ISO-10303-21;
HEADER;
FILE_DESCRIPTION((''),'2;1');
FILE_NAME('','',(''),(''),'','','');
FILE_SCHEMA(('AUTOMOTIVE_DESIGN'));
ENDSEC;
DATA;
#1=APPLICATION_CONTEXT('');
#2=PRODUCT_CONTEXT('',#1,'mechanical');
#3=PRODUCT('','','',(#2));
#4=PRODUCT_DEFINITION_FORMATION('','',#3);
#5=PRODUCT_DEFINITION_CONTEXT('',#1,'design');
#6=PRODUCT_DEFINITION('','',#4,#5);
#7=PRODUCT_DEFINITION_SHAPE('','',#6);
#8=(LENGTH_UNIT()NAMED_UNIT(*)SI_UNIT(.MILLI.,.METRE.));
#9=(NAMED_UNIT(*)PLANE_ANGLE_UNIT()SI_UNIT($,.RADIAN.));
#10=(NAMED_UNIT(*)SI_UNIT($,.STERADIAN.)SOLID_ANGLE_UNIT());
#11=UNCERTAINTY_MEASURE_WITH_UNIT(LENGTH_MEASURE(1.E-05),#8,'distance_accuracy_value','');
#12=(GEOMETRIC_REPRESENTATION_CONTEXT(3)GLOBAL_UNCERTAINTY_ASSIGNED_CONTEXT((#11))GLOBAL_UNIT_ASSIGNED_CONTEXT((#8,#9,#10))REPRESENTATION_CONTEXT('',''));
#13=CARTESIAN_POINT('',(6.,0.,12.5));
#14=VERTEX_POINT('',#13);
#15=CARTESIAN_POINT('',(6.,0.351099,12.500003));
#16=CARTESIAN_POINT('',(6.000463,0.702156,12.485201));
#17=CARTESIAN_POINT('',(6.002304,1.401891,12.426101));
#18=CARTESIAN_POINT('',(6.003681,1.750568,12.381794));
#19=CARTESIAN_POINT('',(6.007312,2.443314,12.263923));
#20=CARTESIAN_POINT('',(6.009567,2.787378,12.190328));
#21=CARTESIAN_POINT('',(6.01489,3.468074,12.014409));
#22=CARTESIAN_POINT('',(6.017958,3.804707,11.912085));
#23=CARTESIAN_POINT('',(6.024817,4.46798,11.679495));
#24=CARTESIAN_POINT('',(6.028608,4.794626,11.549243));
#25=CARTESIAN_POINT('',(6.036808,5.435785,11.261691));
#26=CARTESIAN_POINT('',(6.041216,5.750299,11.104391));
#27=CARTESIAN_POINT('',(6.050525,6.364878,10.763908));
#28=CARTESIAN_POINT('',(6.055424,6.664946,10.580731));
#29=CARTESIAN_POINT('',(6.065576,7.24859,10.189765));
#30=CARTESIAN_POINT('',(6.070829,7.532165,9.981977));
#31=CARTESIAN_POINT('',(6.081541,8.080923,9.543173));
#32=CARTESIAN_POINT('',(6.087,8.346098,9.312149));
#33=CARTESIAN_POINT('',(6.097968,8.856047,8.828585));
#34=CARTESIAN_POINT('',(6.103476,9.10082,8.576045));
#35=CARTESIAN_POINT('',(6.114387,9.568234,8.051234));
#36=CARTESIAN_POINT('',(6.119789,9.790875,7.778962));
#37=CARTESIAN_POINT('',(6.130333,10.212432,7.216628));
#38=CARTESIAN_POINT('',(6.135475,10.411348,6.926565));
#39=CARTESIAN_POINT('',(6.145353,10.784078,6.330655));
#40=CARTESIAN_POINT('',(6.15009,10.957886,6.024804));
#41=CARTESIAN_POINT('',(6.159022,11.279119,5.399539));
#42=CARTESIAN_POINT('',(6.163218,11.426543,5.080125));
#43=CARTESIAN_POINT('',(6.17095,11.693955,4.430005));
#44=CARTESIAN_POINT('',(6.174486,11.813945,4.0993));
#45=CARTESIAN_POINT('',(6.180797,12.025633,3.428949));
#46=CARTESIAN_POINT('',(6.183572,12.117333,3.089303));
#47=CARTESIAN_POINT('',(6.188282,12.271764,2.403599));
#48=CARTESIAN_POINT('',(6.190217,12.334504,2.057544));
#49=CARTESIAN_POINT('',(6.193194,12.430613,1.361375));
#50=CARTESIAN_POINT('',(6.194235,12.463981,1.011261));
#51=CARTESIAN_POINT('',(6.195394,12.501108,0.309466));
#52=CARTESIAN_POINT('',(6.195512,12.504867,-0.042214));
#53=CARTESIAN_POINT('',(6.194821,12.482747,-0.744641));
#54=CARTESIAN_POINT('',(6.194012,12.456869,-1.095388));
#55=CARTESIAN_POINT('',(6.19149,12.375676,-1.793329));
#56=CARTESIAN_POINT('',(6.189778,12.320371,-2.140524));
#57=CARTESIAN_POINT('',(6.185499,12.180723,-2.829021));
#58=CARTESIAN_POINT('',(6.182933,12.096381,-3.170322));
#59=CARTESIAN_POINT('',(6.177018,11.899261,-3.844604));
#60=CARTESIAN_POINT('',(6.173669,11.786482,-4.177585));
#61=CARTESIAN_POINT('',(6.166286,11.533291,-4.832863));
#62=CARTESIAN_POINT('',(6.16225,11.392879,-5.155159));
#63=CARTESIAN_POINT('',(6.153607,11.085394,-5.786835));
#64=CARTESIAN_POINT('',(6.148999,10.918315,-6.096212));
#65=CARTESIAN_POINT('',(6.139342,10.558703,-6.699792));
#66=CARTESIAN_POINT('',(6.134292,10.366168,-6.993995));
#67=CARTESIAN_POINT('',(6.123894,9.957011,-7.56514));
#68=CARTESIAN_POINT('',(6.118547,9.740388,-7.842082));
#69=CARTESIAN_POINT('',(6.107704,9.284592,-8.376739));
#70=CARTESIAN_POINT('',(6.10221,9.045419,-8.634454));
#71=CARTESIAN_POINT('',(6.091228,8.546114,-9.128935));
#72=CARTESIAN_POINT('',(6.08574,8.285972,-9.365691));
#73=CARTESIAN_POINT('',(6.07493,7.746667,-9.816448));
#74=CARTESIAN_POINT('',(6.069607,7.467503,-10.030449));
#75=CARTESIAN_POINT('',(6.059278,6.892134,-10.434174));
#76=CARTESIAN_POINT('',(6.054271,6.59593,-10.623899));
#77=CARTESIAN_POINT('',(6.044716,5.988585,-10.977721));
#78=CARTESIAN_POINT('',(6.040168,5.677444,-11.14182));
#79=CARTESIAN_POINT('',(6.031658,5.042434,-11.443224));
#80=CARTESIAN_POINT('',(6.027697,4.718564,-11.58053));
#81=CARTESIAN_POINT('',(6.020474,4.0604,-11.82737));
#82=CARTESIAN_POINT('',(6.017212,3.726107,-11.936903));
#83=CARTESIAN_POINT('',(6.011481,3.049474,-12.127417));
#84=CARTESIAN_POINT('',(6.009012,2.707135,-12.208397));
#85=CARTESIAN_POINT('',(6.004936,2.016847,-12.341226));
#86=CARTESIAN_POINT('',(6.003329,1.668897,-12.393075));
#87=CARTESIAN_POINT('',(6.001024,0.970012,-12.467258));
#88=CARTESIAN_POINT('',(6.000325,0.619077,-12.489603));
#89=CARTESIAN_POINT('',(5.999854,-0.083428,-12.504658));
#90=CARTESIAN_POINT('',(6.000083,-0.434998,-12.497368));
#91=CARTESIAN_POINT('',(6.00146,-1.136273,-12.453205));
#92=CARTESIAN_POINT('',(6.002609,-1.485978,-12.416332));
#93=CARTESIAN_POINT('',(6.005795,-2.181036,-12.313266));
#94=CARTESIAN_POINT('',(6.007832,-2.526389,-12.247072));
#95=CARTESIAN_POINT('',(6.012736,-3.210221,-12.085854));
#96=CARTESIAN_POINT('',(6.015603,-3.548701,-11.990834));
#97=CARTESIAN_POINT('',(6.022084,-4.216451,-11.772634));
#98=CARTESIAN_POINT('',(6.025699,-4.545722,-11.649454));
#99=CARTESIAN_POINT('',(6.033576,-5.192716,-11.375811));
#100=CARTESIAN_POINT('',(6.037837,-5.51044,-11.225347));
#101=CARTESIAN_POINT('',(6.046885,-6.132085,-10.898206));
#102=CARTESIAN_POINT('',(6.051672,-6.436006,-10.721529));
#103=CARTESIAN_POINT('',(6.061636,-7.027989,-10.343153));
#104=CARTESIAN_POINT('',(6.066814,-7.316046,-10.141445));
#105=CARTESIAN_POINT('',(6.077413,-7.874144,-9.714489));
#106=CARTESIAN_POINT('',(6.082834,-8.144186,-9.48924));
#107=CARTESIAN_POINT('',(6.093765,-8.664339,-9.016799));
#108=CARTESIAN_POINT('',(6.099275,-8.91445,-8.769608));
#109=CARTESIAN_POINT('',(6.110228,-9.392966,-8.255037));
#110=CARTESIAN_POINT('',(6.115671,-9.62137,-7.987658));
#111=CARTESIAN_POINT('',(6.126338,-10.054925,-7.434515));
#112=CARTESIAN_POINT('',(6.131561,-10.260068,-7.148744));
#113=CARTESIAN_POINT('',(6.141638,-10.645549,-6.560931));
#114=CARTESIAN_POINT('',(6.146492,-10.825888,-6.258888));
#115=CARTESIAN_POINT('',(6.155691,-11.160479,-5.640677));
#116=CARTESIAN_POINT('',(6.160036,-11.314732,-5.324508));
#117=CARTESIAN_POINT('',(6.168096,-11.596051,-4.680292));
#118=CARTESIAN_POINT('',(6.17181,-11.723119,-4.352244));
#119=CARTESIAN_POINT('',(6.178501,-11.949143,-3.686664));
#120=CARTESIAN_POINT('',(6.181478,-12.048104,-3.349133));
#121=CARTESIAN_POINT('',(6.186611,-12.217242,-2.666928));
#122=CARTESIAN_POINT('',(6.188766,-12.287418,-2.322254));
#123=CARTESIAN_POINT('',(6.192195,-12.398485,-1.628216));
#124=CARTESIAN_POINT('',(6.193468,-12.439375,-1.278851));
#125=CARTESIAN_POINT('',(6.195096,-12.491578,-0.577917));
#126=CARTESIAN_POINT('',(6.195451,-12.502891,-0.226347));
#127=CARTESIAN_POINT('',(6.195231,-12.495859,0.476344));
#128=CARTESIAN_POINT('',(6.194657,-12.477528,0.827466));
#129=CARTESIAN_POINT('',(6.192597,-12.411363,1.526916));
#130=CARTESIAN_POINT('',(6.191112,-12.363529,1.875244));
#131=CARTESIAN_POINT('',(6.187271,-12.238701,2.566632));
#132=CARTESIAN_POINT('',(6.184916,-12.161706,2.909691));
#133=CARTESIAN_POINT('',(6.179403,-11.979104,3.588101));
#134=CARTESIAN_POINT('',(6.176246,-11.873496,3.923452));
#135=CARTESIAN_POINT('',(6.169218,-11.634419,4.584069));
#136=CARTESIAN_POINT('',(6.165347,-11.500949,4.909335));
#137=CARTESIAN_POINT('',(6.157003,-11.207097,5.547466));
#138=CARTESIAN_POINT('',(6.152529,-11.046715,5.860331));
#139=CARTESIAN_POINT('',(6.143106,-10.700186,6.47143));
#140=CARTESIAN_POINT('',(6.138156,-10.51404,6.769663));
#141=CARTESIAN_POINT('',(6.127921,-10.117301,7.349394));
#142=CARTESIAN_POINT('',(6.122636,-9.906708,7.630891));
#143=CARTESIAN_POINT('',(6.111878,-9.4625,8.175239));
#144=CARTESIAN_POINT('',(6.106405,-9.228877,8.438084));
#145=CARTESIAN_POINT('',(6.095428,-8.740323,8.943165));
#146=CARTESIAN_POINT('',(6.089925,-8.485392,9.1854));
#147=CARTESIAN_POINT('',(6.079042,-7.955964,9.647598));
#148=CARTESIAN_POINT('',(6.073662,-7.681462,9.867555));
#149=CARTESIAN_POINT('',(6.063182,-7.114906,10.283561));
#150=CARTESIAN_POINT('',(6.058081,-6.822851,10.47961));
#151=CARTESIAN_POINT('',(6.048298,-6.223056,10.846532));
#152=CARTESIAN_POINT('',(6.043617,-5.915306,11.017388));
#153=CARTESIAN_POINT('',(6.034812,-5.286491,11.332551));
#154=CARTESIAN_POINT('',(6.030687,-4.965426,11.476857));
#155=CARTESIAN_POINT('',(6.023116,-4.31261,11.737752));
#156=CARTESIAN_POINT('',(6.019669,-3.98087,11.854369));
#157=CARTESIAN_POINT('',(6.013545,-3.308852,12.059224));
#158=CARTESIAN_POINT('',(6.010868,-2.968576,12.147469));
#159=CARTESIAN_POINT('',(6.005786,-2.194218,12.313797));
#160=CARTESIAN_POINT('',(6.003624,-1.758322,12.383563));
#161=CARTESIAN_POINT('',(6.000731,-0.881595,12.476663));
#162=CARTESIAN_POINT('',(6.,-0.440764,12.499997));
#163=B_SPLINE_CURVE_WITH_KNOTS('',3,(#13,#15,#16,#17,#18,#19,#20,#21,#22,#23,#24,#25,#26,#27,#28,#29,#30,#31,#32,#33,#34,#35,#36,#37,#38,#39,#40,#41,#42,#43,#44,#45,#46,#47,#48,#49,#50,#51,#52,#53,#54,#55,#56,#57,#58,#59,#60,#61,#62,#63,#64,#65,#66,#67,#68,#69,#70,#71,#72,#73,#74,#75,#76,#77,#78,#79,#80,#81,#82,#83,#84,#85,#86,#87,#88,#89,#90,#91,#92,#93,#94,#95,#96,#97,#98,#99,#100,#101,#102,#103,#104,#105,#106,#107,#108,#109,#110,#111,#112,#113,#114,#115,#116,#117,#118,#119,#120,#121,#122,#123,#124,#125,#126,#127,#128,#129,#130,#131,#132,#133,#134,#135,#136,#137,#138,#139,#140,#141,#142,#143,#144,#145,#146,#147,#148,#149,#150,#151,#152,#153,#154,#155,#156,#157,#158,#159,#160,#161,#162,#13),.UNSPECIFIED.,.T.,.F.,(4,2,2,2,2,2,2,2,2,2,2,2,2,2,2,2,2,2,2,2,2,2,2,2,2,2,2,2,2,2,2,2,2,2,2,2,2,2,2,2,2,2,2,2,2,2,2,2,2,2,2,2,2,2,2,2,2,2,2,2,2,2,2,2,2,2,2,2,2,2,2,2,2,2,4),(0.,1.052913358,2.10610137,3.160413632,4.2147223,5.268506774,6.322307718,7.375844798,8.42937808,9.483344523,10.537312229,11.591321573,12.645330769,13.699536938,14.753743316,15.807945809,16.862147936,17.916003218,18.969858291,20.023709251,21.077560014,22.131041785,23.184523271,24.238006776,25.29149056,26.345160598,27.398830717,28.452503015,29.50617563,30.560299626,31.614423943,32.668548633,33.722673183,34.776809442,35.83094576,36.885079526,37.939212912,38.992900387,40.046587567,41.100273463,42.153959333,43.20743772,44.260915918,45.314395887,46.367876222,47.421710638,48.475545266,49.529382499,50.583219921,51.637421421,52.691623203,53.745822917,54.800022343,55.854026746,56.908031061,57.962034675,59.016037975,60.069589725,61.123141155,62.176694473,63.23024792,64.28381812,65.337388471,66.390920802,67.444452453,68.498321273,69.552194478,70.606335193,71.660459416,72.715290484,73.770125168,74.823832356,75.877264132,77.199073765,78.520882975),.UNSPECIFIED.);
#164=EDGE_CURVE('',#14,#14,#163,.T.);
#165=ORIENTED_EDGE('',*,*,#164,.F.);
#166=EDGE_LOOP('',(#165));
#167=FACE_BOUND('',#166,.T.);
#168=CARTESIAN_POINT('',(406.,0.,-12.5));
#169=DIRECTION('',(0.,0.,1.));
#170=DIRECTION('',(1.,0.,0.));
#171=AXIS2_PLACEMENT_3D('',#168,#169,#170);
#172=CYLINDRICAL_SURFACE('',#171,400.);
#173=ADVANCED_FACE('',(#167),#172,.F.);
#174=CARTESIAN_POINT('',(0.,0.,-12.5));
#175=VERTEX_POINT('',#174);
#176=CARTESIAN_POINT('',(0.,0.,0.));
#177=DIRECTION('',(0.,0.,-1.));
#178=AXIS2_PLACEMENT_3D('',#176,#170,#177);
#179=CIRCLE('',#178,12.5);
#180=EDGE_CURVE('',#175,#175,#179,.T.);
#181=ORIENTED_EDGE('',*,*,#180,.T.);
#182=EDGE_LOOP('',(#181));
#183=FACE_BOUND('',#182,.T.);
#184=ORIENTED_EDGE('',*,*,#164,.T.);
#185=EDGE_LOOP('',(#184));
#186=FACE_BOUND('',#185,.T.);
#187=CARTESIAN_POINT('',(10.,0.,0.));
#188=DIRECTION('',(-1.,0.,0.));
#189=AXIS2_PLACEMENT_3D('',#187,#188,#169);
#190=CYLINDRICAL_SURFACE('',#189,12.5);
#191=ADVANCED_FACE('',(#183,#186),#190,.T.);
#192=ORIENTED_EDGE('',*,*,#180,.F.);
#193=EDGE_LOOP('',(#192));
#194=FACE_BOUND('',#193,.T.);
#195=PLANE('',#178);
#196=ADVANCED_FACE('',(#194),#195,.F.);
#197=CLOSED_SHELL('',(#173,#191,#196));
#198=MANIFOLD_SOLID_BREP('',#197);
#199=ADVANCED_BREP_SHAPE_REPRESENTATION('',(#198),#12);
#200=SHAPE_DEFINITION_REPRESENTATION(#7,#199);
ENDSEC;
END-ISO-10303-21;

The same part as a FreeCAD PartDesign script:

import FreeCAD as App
import Part
import Sketcher

doc = App.newDocument("Part")
body = doc.addObject("PartDesign::Body", "Body")

# Sketch on YZ plane
sketch1 = body.newObject("Sketcher::SketchObject", "Sketch")
sketch1.AttachmentSupport = (doc.getObject("YZ_Plane"), [""])
sketch1.MapMode = "FlatFace"
sketch1.addGeometry(Part.Circle(App.Vector(0, 0, 0), App.Vector(0, 0, 1), 12), False)
sketch1.addConstraint(Sketcher.Constraint("Coincident", 0, 3, -1, 1))
sketch1.addConstraint(Sketcher.Constraint("Diameter", 0, 25.0))
pad1 = body.newObject("PartDesign::Pad", "Pad")
pad1.Profile = sketch1
pad1.Length = 10

# Sketch on XY plane
sketch2 = body.newObject("Sketcher::SketchObject", "Sketch001")
sketch2.AttachmentSupport = (doc.getObject("XY_Plane"), [""])
sketch2.MapMode = "FlatFace"
sketch2.addGeometry(Part.Circle(App.Vector(406, 0, 0), App.Vector(0, 0, 1), 400), False)
sketch2.addConstraint(Sketcher.Constraint("PointOnObject", 0, 3, -1))
sketch2.addConstraint(Sketcher.Constraint("Diameter", 0, 800.0))
sketch2.addConstraint(Sketcher.Constraint("DistanceX", -1, 1, 0, 3, 406.0))
pocket1 = body.newObject("PartDesign::Pocket", "Pocket")
pocket1.Profile = sketch2
pocket1.Type = "ThroughAll"
pocket1.Midplane = True

doc.recompute()
